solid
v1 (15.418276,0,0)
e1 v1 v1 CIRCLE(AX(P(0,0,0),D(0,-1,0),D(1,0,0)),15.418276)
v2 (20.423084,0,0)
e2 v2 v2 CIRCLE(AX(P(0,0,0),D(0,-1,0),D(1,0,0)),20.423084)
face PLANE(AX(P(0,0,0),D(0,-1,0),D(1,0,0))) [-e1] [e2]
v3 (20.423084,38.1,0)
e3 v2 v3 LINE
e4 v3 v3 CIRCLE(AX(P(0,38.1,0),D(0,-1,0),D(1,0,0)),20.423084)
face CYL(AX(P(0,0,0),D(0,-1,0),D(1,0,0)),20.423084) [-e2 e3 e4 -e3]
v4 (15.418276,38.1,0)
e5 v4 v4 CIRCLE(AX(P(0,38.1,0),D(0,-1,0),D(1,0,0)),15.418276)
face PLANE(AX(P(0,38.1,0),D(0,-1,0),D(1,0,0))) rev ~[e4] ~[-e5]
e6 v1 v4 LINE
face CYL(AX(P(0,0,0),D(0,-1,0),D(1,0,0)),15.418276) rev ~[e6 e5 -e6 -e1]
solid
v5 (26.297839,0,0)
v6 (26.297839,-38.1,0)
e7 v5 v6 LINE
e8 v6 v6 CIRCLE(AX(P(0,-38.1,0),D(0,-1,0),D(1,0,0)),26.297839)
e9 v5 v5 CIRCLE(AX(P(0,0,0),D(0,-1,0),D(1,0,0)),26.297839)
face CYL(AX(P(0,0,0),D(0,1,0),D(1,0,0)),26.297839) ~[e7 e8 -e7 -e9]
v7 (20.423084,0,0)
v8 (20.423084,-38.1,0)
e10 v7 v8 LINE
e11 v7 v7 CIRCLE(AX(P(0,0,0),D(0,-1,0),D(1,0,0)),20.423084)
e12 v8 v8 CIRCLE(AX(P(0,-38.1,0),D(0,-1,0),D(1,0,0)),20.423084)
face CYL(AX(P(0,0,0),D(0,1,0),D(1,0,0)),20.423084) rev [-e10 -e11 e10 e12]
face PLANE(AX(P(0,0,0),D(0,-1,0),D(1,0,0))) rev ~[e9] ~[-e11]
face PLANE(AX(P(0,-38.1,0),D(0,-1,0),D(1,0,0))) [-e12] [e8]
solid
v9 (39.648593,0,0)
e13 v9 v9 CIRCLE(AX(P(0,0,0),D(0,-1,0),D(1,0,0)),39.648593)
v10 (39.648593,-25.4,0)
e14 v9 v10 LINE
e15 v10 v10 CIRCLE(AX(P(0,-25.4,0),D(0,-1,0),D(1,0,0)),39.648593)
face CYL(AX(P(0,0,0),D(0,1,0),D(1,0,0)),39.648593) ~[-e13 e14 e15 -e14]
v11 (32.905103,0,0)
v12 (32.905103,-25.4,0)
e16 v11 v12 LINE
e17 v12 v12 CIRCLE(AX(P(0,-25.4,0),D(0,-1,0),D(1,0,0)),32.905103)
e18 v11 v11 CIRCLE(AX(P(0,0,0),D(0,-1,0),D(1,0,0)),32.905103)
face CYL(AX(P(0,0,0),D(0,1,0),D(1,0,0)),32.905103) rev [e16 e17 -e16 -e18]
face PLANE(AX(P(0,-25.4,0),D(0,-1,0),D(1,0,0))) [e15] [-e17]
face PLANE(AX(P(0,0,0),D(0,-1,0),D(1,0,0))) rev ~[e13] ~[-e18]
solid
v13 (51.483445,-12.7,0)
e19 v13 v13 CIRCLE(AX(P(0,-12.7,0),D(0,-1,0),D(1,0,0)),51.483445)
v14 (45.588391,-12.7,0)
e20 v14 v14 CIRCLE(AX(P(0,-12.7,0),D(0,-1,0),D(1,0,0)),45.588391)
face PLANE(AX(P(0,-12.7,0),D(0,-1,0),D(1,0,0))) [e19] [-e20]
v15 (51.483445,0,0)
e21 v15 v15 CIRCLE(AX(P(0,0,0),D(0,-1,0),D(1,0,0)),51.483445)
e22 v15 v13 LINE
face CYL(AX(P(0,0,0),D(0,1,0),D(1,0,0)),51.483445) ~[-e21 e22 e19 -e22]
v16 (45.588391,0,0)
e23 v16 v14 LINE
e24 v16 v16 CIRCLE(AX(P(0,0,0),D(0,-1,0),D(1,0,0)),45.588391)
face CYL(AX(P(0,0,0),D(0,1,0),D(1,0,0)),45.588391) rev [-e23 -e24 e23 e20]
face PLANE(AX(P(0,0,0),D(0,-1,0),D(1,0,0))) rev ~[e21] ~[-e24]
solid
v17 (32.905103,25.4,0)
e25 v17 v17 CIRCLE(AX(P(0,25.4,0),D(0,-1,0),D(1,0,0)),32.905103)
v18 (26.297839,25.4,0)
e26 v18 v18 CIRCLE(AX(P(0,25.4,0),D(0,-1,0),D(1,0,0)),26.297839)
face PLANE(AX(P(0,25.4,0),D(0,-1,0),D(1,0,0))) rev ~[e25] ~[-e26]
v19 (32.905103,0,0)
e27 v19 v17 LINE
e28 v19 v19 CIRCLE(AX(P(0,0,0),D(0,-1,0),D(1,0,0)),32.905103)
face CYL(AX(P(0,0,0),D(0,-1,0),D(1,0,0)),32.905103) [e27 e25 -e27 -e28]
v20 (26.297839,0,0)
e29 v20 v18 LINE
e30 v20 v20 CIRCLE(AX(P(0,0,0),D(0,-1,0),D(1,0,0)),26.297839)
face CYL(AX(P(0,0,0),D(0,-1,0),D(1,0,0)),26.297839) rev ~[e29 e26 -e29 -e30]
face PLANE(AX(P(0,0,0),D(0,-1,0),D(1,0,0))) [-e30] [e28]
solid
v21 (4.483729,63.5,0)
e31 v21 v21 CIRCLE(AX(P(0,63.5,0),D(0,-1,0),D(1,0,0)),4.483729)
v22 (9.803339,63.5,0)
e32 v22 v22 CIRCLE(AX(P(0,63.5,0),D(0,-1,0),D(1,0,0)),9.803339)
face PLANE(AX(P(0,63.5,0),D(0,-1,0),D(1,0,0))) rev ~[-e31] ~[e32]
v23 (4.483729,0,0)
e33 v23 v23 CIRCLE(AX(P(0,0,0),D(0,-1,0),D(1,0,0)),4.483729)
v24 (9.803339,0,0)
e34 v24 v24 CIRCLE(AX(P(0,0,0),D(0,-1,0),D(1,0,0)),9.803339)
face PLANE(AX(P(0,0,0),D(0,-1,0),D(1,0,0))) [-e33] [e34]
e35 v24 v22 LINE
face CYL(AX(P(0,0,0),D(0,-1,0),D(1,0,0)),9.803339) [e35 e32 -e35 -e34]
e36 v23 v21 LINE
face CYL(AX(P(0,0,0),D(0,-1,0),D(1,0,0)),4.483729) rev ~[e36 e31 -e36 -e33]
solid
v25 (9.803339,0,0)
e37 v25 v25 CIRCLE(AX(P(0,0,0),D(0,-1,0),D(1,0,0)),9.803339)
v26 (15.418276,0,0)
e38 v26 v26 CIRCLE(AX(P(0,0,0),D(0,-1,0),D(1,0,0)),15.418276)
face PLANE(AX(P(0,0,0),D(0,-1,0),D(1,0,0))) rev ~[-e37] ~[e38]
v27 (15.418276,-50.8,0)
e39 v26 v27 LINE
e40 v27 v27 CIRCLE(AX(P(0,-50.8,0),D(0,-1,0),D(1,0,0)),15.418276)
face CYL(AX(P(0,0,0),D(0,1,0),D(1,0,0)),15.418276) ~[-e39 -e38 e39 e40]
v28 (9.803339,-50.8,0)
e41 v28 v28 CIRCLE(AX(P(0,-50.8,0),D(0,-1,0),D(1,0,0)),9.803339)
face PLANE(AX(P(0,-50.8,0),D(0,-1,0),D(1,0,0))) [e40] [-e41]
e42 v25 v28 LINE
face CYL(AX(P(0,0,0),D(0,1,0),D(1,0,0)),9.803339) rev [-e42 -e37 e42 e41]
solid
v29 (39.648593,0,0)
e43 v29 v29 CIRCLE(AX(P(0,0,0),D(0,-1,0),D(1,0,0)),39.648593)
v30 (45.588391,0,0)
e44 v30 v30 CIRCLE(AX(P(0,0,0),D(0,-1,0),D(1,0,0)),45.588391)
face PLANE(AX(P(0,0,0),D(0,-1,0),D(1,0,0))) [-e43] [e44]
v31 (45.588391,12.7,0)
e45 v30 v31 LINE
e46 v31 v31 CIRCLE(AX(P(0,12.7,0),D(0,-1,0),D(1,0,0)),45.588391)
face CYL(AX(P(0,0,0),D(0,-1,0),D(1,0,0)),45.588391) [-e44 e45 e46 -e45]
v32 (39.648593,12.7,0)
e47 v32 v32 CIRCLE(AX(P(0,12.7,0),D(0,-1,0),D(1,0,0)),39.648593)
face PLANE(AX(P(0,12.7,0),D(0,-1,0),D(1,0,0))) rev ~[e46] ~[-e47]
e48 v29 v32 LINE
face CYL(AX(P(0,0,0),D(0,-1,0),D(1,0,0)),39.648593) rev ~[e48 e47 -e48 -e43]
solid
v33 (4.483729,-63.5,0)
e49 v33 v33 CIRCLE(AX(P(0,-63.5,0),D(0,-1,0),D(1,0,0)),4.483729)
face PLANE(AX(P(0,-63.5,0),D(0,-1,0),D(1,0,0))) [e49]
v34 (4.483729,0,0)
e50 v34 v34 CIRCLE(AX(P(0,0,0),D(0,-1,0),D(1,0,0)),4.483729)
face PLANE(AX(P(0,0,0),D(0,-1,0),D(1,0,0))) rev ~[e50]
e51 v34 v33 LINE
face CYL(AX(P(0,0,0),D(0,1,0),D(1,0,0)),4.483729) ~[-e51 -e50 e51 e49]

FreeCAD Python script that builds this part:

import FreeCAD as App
import Part
import Sketcher

V = App.Vector
Q = App.Units.Quantity

doc = App.newDocument("Part")
body = doc.addObject("PartDesign::Body", "Body")

# Sketch on XZ plane
sketch1 = doc.addObject("Sketcher::SketchObject", "Sketch")
body.addObject(sketch1)
sketch1.AttachmentSupport = (doc.XZ_Plane, [""])
sketch1.MapMode = "FlatFace"
sketch1.addGeometry([
    Part.Circle(V(0, 0, 0), V(0, 0, 1), 51.483445),
    Part.Circle(V(0, 0, 0), V(0, 0, 1), 45.588391),
], False)
sketch1.addConstraint([
    Sketcher.Constraint("Coincident", 0, 3, -1, 1),
    Sketcher.Constraint("Coincident", 1, 3, -1, 1),
    Sketcher.Constraint("Diameter", 0, 102.96689),
    Sketcher.Constraint("Diameter", 1, 91.176782),
])
pad1 = doc.addObject("PartDesign::Pad", "Pad")
body.addObject(pad1)
pad1.Profile = sketch1
pad1.Length = Q("0.5 in")
body2 = doc.addObject("PartDesign::Body", "Body001")

# Sketch on XZ plane
sketch2 = doc.addObject("Sketcher::SketchObject", "Sketch001")
body2.addObject(sketch2)
sketch2.AttachmentSupport = (doc.getObject("XZ_Plane001"), [""])
sketch2.MapMode = "FlatFace"
sketch2.addGeometry([
    Part.Circle(V(0, 0, 0), V(0, 0, 1), 45.588391),
    Part.Circle(V(0, 0, 0), V(0, 0, 1), 39.648593),
], False)
sketch2.addConstraint([
    Sketcher.Constraint("Coincident", 0, 3, -1, 1),
    Sketcher.Constraint("Coincident", 1, 3, -1, 1),
    Sketcher.Constraint("Diameter", 0, 91.176782),
    Sketcher.Constraint("Diameter", 1, 79.297186),
])
pad2 = doc.addObject("PartDesign::Pad", "Pad001")
body2.addObject(pad2)
pad2.Profile = sketch2
pad2.Length = Q("0.5 in")
pad2.Reversed = True
body3 = doc.addObject("PartDesign::Body", "Body002")
body3.AllowCompound = True

# Sketch on XZ plane
sketch3 = doc.addObject("Sketcher::SketchObject", "Sketch002")
body3.addObject(sketch3)
sketch3.AttachmentSupport = (doc.getObject("XZ_Plane002"), [""])
sketch3.MapMode = "FlatFace"
sketch3.addGeometry([
    Part.Circle(V(0, 0, 0), V(0, 0, 1), 39.648593),
    Part.Circle(V(0, 0, 0), V(0, 0, 1), 32.905103),
], False)
sketch3.addConstraint([
    Sketcher.Constraint("Coincident", 0, 3, -1, 1),
    Sketcher.Constraint("Coincident", 1, 3, -1, 1),
    Sketcher.Constraint("Diameter", 0, 79.297186),
    Sketcher.Constraint("Diameter", 1, 65.810206),
])
pad3 = doc.addObject("PartDesign::Pad", "Pad002")
body3.addObject(pad3)
pad3.Profile = sketch3
pad3.Length = Q("1 in")

# Sketch on XZ plane
sketch4 = doc.addObject("Sketcher::SketchObject", "Sketch003")
body3.addObject(sketch4)
sketch4.AttachmentSupport = (doc.getObject("XZ_Plane002"), [""])
sketch4.MapMode = "FlatFace"
sketch4.addGeometry([
    Part.Circle(V(0, 0, 0), V(0, 0, 1), 32.905103),
    Part.Circle(V(0, 0, 0), V(0, 0, 1), 26.297839),
], False)
sketch4.addConstraint([
    Sketcher.Constraint("Coincident", 0, 3, -1, 1),
    Sketcher.Constraint("Coincident", 1, 3, -1, 1),
    Sketcher.Constraint("Diameter", 0, 65.810206),
    Sketcher.Constraint("Diameter", 1, 52.595678),
])
pad4 = doc.addObject("PartDesign::Pad", "Pad003")
body3.addObject(pad4)
pad4.Profile = sketch4
pad4.Length = Q("1 in")
pad4.Reversed = True
body4 = doc.addObject("PartDesign::Body", "Body003")
body4.AllowCompound = True

# Sketch on XZ plane
sketch5 = doc.addObject("Sketcher::SketchObject", "Sketch004")
body4.addObject(sketch5)
sketch5.AttachmentSupport = (doc.getObject("XZ_Plane003"), [""])
sketch5.MapMode = "FlatFace"
sketch5.addGeometry([
    Part.Circle(V(0, 0, 0), V(0, 0, 1), 26.297839),
    Part.Circle(V(0, 0, 0), V(0, 0, 1), 20.423084),
], False)
sketch5.addConstraint([
    Sketcher.Constraint("Coincident", 0, 3, -1, 1),
    Sketcher.Constraint("Coincident", 1, 3, -1, 1),
    Sketcher.Constraint("Diameter", 0, 52.595678),
    Sketcher.Constraint("Diameter", 1, 40.846168),
])
pad5 = doc.addObject("PartDesign::Pad", "Pad004")
body4.addObject(pad5)
pad5.Profile = sketch5
pad5.Length = Q("1.5 in")

# Sketch on XZ plane
sketch6 = doc.addObject("Sketcher::SketchObject", "Sketch005")
body4.addObject(sketch6)
sketch6.AttachmentSupport = (doc.getObject("XZ_Plane003"), [""])
sketch6.MapMode = "FlatFace"
sketch6.addGeometry([
    Part.Circle(V(0, 0, 0), V(0, 0, 1), 20.423084),
    Part.Circle(V(0, 0, 0), V(0, 0, 1), 15.418276),
], False)
sketch6.addConstraint([
    Sketcher.Constraint("Coincident", 0, 3, -1, 1),
    Sketcher.Constraint("Coincident", 1, 3, -1, 1),
    Sketcher.Constraint("Diameter", 0, 40.846168),
    Sketcher.Constraint("Diameter", 1, 30.836552),
])
pad6 = doc.addObject("PartDesign::Pad", "Pad005")
body4.addObject(pad6)
pad6.Profile = sketch6
pad6.Length = Q("1.5 in")
pad6.Reversed = True
body5 = doc.addObject("PartDesign::Body", "Body004")
body5.AllowCompound = True

# Sketch on XZ plane
sketch7 = doc.addObject("Sketcher::SketchObject", "Sketch006")
body5.addObject(sketch7)
sketch7.AttachmentSupport = (doc.getObject("XZ_Plane004"), [""])
sketch7.MapMode = "FlatFace"
sketch7.addGeometry([
    Part.Circle(V(0, 0, 0), V(0, 0, 1), 15.418276),
    Part.Circle(V(0, 0, 0), V(0, 0, 1), 9.803339),
], False)
sketch7.addConstraint([
    Sketcher.Constraint("Coincident", 0, 3, -1, 1),
    Sketcher.Constraint("Coincident", 1, 3, -1, 1),
    Sketcher.Constraint("Diameter", 0, 30.836552),
    Sketcher.Constraint("Diameter", 1, 19.606678),
])
pad7 = doc.addObject("PartDesign::Pad", "Pad006")
body5.addObject(pad7)
pad7.Profile = sketch7
pad7.Length = Q("2 in")

# Sketch on XZ plane
sketch8 = doc.addObject("Sketcher::SketchObject", "Sketch007")
body5.addObject(sketch8)
sketch8.AttachmentSupport = (doc.getObject("XZ_Plane004"), [""])
sketch8.MapMode = "FlatFace"
sketch8.addGeometry([
    Part.Circle(V(0, 0, 0), V(0, 0, 1), 9.803339),
    Part.Circle(V(0, 0, 0), V(0, 0, 1), 4.483729),
], False)
sketch8.addConstraint([
    Sketcher.Constraint("Coincident", 0, 3, -1, 1),
    Sketcher.Constraint("Coincident", 1, 3, -1, 1),
    Sketcher.Constraint("Diameter", 0, 19.606678),
    Sketcher.Constraint("Diameter", 1, 8.967458),
])
pad8 = doc.addObject("PartDesign::Pad", "Pad007")
body5.addObject(pad8)
pad8.Profile = sketch8
pad8.Length = Q("2.5 in")
pad8.Reversed = True
body6 = doc.addObject("PartDesign::Body", "Body005")

# Sketch on XZ plane
sketch9 = doc.addObject("Sketcher::SketchObject", "Sketch008")
body6.addObject(sketch9)
sketch9.AttachmentSupport = (doc.getObject("XZ_Plane005"), [""])
sketch9.MapMode = "FlatFace"
sketch9.addGeometry(Part.Circle(V(0, 0, 0), V(0, 0, 1), 4.483729), False)
sketch9.addConstraint([
    Sketcher.Constraint("Coincident", 0, 3, -1, 1),
    Sketcher.Constraint("Diameter", 0, 8.967458),
])
pad9 = doc.addObject("PartDesign::Pad", "Pad008")
body6.addObject(pad9)
pad9.Profile = sketch9
pad9.Length = Q("2.5 in")

doc.recompute()
